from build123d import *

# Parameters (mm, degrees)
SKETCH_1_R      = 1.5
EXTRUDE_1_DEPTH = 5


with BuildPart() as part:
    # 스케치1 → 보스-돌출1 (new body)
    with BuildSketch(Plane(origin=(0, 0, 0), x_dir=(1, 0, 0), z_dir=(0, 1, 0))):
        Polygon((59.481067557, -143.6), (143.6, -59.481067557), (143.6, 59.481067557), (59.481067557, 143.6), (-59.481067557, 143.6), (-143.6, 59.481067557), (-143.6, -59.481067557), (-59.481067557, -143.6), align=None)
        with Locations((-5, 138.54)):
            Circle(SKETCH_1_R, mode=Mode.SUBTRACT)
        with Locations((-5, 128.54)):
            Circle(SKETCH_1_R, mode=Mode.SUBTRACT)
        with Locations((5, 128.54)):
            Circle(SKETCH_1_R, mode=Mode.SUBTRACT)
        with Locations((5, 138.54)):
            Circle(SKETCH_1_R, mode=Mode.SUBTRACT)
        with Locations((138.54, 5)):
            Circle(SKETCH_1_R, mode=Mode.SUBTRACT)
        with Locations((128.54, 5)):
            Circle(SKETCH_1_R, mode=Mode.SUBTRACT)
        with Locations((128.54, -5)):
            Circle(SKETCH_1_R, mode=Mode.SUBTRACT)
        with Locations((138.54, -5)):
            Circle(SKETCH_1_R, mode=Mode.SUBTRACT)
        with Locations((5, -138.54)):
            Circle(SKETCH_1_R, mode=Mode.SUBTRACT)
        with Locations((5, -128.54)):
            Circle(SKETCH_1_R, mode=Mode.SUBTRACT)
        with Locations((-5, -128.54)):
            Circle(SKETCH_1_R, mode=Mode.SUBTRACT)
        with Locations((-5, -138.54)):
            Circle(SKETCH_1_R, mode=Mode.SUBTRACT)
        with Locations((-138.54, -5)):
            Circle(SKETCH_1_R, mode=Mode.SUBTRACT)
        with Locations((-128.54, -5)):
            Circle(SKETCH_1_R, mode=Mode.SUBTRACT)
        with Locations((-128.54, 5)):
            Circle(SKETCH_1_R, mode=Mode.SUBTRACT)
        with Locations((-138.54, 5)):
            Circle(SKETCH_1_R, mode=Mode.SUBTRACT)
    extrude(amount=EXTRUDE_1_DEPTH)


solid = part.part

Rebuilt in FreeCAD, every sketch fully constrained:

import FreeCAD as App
import Part
import Sketcher
Q = App.Units.Quantity


def add_polygon(sketch, points):
    """Adds a closed chain of lines whose ends are joined by coincident constraints."""
    first, n = sketch.GeometryCount, len(points)
    for a, b in zip(points, points[1:] + points[:1]):
        sketch.addGeometry(Part.LineSegment(App.Vector(*a, 0), App.Vector(*b, 0)), False)
    for i in range(n):
        sketch.addConstraint(Sketcher.Constraint("Coincident", first + i, 2, first + (i + 1) % n, 1))

doc = App.newDocument("Part")
body = doc.addObject("PartDesign::Body", "Body")

# Sketch on XZ plane
sketch1 = body.newObject("Sketcher::SketchObject", "Sketch")
sketch1.AttachmentSupport = (doc.getObject("XZ_Plane"), [""])
sketch1.MapMode = "FlatFace"
add_polygon(sketch1, [(59.5, 143.6), (143.6, 59.5), (143.6, -59.5), (59.5, -143.6), (-59.5, -143.6), (-143.6, -59.5), (-143.6, 59.5), (-59.5, 143.6)])  # lines 0-7
sketch1.addGeometry(Part.Circle(App.Vector(-5, 138.5, 0), App.Vector(0, 0, 1), 1.5), False)  # 8
sketch1.addGeometry(Part.Circle(App.Vector(-5, 128.5, 0), App.Vector(0, 0, 1), 1.5), False)  # 9
sketch1.addGeometry(Part.Circle(App.Vector(-138.5, 5, 0), App.Vector(0, 0, 1), 1.5), False)  # 10
sketch1.addGeometry(Part.Circle(App.Vector(-128.5, 5, 0), App.Vector(0, 0, 1), 1.5), False)  # 11
sketch1.addGeometry(Part.Circle(App.Vector(5, 138.5, 0), App.Vector(0, 0, 1), 1.5), False)  # 12
sketch1.addGeometry(Part.Circle(App.Vector(5, 128.5, 0), App.Vector(0, 0, 1), 1.5), False)  # 13
sketch1.addGeometry(Part.Circle(App.Vector(128.5, 5, 0), App.Vector(0, 0, 1), 1.5), False)  # 14
sketch1.addGeometry(Part.Circle(App.Vector(138.5, 5, 0), App.Vector(0, 0, 1), 1.5), False)  # 15
sketch1.addGeometry(Part.Circle(App.Vector(-138.5, -5, 0), App.Vector(0, 0, 1), 1.5), False)  # 16
sketch1.addGeometry(Part.Circle(App.Vector(-128.5, -5, 0), App.Vector(0, 0, 1), 1.5), False)  # 17
sketch1.addGeometry(Part.Circle(App.Vector(-5, -128.5, 0), App.Vector(0, 0, 1), 1.5), False)  # 18
sketch1.addGeometry(Part.Circle(App.Vector(-5, -138.5, 0), App.Vector(0, 0, 1), 1.5), False)  # 19
sketch1.addGeometry(Part.Circle(App.Vector(128.5, -5, 0), App.Vector(0, 0, 1), 1.5), False)  # 20
sketch1.addGeometry(Part.Circle(App.Vector(138.5, -5, 0), App.Vector(0, 0, 1), 1.5), False)  # 21
sketch1.addGeometry(Part.Circle(App.Vector(5, -128.5, 0), App.Vector(0, 0, 1), 1.5), False)  # 22
sketch1.addGeometry(Part.Circle(App.Vector(5, -138.5, 0), App.Vector(0, 0, 1), 1.5), False)  # 23
sketch1.addConstraint(Sketcher.Constraint("Vertical", 1))
sketch1.addConstraint(Sketcher.Constraint("Horizontal", 3))
sketch1.addConstraint(Sketcher.Constraint("Vertical", 5))
sketch1.addConstraint(Sketcher.Constraint("Horizontal", 7))
sketch1.addConstraint(Sketcher.Constraint("Equal", 8, 9))
sketch1.addConstraint(Sketcher.Constraint("Equal", 9, 10))
sketch1.addConstraint(Sketcher.Constraint("Equal", 10, 11))
sketch1.addConstraint(Sketcher.Constraint("Equal", 11, 12))
sketch1.addConstraint(Sketcher.Constraint("Equal", 12, 13))
sketch1.addConstraint(Sketcher.Constraint("Equal", 13, 14))
sketch1.addConstraint(Sketcher.Constraint("Equal", 14, 15))
sketch1.addConstraint(Sketcher.Constraint("Equal", 15, 16))
sketch1.addConstraint(Sketcher.Constraint("Equal", 16, 17))
sketch1.addConstraint(Sketcher.Constraint("Equal", 17, 18))
sketch1.addConstraint(Sketcher.Constraint("Equal", 18, 19))
sketch1.addConstraint(Sketcher.Constraint("Equal", 19, 20))
sketch1.addConstraint(Sketcher.Constraint("Equal", 20, 21))
sketch1.addConstraint(Sketcher.Constraint("Equal", 21, 22))
sketch1.addConstraint(Sketcher.Constraint("Equal", 22, 23))
sketch1.addConstraint(Sketcher.Constraint("Symmetric", 15, 3, 16, 3, -1, 1))
sketch1.addConstraint(Sketcher.Constraint("Symmetric", 14, 3, 17, 3, -1, 1))
sketch1.addConstraint(Sketcher.Constraint("Symmetric", 13, 3, 18, 3, -1, 1))
sketch1.addConstraint(Sketcher.Constraint("Symmetric", 12, 3, 19, 3, -1, 1))
sketch1.addConstraint(Sketcher.Constraint("Symmetric", 11, 3, 20, 3, -1, 1))
sketch1.addConstraint(Sketcher.Constraint("Symmetric", 10, 3, 21, 3, -1, 1))
sketch1.addConstraint(Sketcher.Constraint("Symmetric", 9, 3, 22, 3, -1, 1))
sketch1.addConstraint(Sketcher.Constraint("Symmetric", 8, 3, 23, 3, -1, 1))
sketch1.addConstraint(Sketcher.Constraint("Symmetric", 0, 2, 4, 2, -1, 1))
sketch1.addConstraint(Sketcher.Constraint("Symmetric", 2, 2, 6, 2, -1, 1))
sketch1.addConstraint(Sketcher.Constraint("Symmetric", 8, 3, 12, 3, -2))
sketch1.addConstraint(Sketcher.Constraint("Symmetric", 9, 3, 13, 3, -2))
sketch1.addConstraint(Sketcher.Constraint("Symmetric", 11, 3, 14, 3, -2))
sketch1.addConstraint(Sketcher.Constraint("Symmetric", 10, 3, 15, 3, -2))
sketch1.addConstraint(Sketcher.Constraint("Perpendicular", 0, 2))
sketch1.addConstraint(Sketcher.Constraint("Perpendicular", 2, 4))
sketch1.addConstraint(Sketcher.Constraint("Perpendicular", 4, 6))
sketch1.addConstraint(Sketcher.Constraint("Horizontal", 10, 3, 11, 3))
sketch1.addConstraint(Sketcher.Constraint("Horizontal", 1, 2, 4, 2))
sketch1.addConstraint(Sketcher.Constraint("Vertical", 8, 3, 9, 3))
sketch1.addConstraint(Sketcher.Constraint("Vertical", 3, 2, 6, 2))
sketch1.addConstraint(Sketcher.Constraint("Equal", 7, 1))
sketch1.addConstraint(Sketcher.Constraint("Diameter", 8, Q("3 mm")))
sketch1.addConstraint(Sketcher.Constraint("DistanceX", 8, 3, -1, 1, Q("5 mm")))
sketch1.addConstraint(Sketcher.Constraint("DistanceY", -1, 1, 10, 3, Q("5 mm")))
sketch1.addConstraint(Sketcher.Constraint("DistanceY", 9, 3, 8, 3, Q("10 mm")))
sketch1.addConstraint(Sketcher.Constraint("DistanceX", 10, 3, 11, 3, Q("10 mm")))
sketch1.addConstraint(Sketcher.Constraint("DistanceX", -1, 1, 0, 2, Q("143.6 mm")))
sketch1.addConstraint(Sketcher.Constraint("DistanceY", -1, 1, 8, 3, Q("138.54 mm")))
sketch1.addConstraint(Sketcher.Constraint("DistanceX", 10, 3, -1, 1, Q("138.54 mm")))
sketch1.addConstraint(Sketcher.Constraint("DistanceX", 3, 2, 3, 1, Q("118.962135 mm")))
pad1 = body.newObject("PartDesign::Pad", "Pad")
pad1.Profile = sketch1
pad1.Length = 5
pad1.Reversed = True

doc.recompute()
